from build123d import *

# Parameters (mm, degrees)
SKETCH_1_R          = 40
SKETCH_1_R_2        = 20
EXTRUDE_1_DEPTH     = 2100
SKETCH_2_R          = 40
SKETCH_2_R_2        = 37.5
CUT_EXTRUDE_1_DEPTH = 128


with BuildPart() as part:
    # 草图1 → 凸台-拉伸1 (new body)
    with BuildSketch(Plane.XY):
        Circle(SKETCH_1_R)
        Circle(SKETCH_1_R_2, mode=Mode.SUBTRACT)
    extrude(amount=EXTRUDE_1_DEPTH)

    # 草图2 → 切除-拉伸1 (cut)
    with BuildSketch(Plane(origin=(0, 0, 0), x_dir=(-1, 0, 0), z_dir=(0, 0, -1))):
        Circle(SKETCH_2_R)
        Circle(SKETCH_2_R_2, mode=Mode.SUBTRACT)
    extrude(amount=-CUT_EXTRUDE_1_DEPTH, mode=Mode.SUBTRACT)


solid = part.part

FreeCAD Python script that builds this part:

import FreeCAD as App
import Part
import Sketcher
Q = App.Units.Quantity

doc = App.newDocument("Part")
body = doc.addObject("PartDesign::Body", "Body")

sketch1 = doc.addObject("Sketcher::SketchObject", "Sketch")
body.addObject(sketch1)
sketch1.AttachmentSupport = (doc.XY_Plane, [""])
sketch1.MapMode = "FlatFace"
sketch1.addGeometry(Part.Circle(App.Vector(0, 0, 0), App.Vector(0, 0, 1), 40), False)
sketch1.addGeometry(Part.Circle(App.Vector(0, 0, 0), App.Vector(0, 0, 1), 20), False)
sketch1.addConstraint(Sketcher.Constraint("Coincident", 0, 3, -1, 1))
sketch1.addConstraint(Sketcher.Constraint("Coincident", 1, 3, -1, 1))
sketch1.addConstraint(Sketcher.Constraint("Diameter", 0, Q("80 mm")))
sketch1.addConstraint(Sketcher.Constraint("Diameter", 1, Q("40 mm")))
pad1 = doc.addObject("PartDesign::Pad", "Pad")
body.addObject(pad1)
pad1.Profile = sketch1
pad1.Length = 2100

sketch2 = doc.addObject("Sketcher::SketchObject", "Sketch001")
body.addObject(sketch2)
sketch2.AttachmentSupport = (doc.XY_Plane, [""])
sketch2.MapMode = "FlatFace"
sketch2.addGeometry(Part.Circle(App.Vector(0, 0, 0), App.Vector(0, 0, 1), 40), False)
sketch2.addGeometry(Part.Circle(App.Vector(0, 0, 0), App.Vector(0, 0, 1), 38), False)
sketch2.addConstraint(Sketcher.Constraint("Coincident", 0, 3, -1, 1))
sketch2.addConstraint(Sketcher.Constraint("Coincident", 1, 3, -1, 1))
sketch2.addConstraint(Sketcher.Constraint("Diameter", 0, Q("80 mm")))
sketch2.addConstraint(Sketcher.Constraint("Diameter", 1, Q("75 mm")))
pocket1 = doc.addObject("PartDesign::Pocket", "Pocket")
body.addObject(pocket1)
pocket1.Profile = sketch2
pocket1.Length = 128
pocket1.Reversed = True

doc.recompute()
